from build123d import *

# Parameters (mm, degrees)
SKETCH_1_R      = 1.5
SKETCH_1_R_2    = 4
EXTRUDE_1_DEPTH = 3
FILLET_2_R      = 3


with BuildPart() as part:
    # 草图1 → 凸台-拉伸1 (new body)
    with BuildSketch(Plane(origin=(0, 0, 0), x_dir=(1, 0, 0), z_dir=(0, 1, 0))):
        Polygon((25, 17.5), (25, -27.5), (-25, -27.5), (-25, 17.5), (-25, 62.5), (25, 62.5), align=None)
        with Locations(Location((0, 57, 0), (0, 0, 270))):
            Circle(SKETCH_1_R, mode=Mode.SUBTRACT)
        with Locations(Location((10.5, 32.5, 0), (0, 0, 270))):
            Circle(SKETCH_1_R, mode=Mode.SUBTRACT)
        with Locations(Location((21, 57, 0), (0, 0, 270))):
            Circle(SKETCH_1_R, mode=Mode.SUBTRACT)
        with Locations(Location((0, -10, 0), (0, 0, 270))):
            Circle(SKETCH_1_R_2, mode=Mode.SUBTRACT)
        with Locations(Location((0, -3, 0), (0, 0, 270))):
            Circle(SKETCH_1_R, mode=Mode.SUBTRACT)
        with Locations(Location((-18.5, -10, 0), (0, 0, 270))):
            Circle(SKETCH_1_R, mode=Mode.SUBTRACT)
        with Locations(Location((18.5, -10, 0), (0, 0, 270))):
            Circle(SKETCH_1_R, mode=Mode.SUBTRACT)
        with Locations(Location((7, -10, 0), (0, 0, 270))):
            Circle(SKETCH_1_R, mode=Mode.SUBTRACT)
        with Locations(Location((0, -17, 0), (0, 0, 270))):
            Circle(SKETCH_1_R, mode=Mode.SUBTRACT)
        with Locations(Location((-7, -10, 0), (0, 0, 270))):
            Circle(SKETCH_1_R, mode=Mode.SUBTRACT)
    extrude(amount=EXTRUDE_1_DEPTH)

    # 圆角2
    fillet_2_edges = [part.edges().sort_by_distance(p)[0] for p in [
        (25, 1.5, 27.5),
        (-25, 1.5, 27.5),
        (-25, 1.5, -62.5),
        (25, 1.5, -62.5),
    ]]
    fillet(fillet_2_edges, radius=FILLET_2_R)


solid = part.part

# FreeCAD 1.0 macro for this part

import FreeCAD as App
import Part
import Sketcher

V = App.Vector


def edges_at(feature, points):
    """Names of the edges that pass closest to the given points."""
    edges = feature.Shape.Edges
    near = lambda p: min(range(len(edges)), key=lambda i: edges[i].distToShape(Part.Vertex(*p))[0])
    return sorted({f"Edge{near(p) + 1}" for p in points})

doc = App.newDocument("Part")
body = doc.addObject("PartDesign::Body", "Body")

# Sketch on XZ plane
sketch1 = body.newObject("Sketcher::SketchObject", "Sketch")
sketch1.AttachmentSupport = (doc.getObject("XZ_Plane"), [""])
sketch1.MapMode = "FlatFace"
sketch1.addGeometry([
    Part.LineSegment(V(25, 27.5, 0), V(25, -62.5, 0)),  # 0
    Part.LineSegment(V(25, -62.5, 0), V(-25, -62.5, 0)),  # 1
    Part.LineSegment(V(-25, -62.5, 0), V(-25, 27.5, 0)),  # 2
    Part.LineSegment(V(-25, 27.5, 0), V(25, 27.5, 0)),  # 3
    Part.Circle(V(18.5, 10, 0), V(0, 0, 1), 1.5),  # 4
    Part.Circle(V(7, 10, 0), V(0, 0, 1), 1.5),  # 5
    Part.Circle(V(0, 17, 0), V(0, 0, 1), 1.5),  # 6
    Part.Circle(V(0, 10, 0), V(0, 0, 1), 4),  # 7
    Part.Circle(V(-7, 10, 0), V(0, 0, 1), 1.5),  # 8
    Part.Circle(V(0, 3, 0), V(0, 0, 1), 1.5),  # 9
    Part.Circle(V(-18.5, 10, 0), V(0, 0, 1), 1.5),  # 10
    Part.Circle(V(10.5, -32.5, 0), V(0, 0, 1), 1.5),  # 11
    Part.Circle(V(21, -57, 0), V(0, 0, 1), 1.5),  # 12
    Part.Circle(V(0, -57, 0), V(0, 0, 1), 1.5),  # 13
], False)
sketch1.addConstraint([
    Sketcher.Constraint("Coincident", 0, 2, 1, 1),
    Sketcher.Constraint("Coincident", 1, 2, 2, 1),
    Sketcher.Constraint("Coincident", 2, 2, 3, 1),
    Sketcher.Constraint("Coincident", 3, 2, 0, 1),
    Sketcher.Constraint("Vertical", 0),
    Sketcher.Constraint("Horizontal", 1),
    Sketcher.Constraint("Vertical", 2),
    Sketcher.Constraint("Horizontal", 3),
    Sketcher.Constraint("Equal", 4, 5),
    Sketcher.Constraint("Equal", 5, 6),
    Sketcher.Constraint("Equal", 6, 8),
    Sketcher.Constraint("Equal", 8, 9),
    Sketcher.Constraint("Equal", 9, 10),
    Sketcher.Constraint("Equal", 10, 11),
    Sketcher.Constraint("Equal", 11, 12),
    Sketcher.Constraint("Equal", 12, 13),
    Sketcher.Constraint("Symmetric", 5, 3, 8, 3, -2),
    Sketcher.Constraint("Symmetric", 4, 3, 10, 3, -2),
    Sketcher.Constraint("PointOnObject", 6, 3, -2),
    Sketcher.Constraint("PointOnObject", 7, 3, -2),
    Sketcher.Constraint("PointOnObject", 9, 3, -2),
    Sketcher.Constraint("PointOnObject", 13, 3, -2),
    Sketcher.Constraint("Horizontal", 4, 3, 5, 3),
    Sketcher.Constraint("Horizontal", 5, 3, 7, 3),
    Sketcher.Constraint("Horizontal", 12, 3, 13, 3),
    Sketcher.Constraint("Diameter", 4, 3.0),
    Sketcher.Constraint("Diameter", 7, 8.0),
    Sketcher.Constraint("DistanceX", 1, 2, 1, 1, 50.0),
    Sketcher.Constraint("DistanceY", 0, 2, 0, 1, 90.0),
    Sketcher.Constraint("DistanceY", -1, 1, 4, 3, 10.0),
    Sketcher.Constraint("DistanceX", -1, 1, 5, 3, 7.0),
    Sketcher.Constraint("DistanceY", -1, 1, 6, 3, 17.0),
    Sketcher.Constraint("DistanceY", -1, 1, 9, 3, 3.0),
    Sketcher.Constraint("DistanceX", -1, 1, 12, 3, 21.0),
    Sketcher.Constraint("DistanceY", 12, 3, -1, 1, 57.0),
    Sketcher.Constraint("DistanceX", -1, 1, 0, 2, 25.0),
    Sketcher.Constraint("DistanceX", 11, 3, 4, 3, 8.0),
    Sketcher.Constraint("DistanceY", 0, 2, 11, 3, 30.0),
    Sketcher.Constraint("DistanceX", -1, 1, 4, 3, 18.5),
    Sketcher.Constraint("DistanceY", 11, 3, -1, 1, 32.5),
])
pad1 = body.newObject("PartDesign::Pad", "Pad")
pad1.Profile = sketch1
pad1.Length = 3
pad1.Reversed = True
doc.recompute()

fillet = body.newObject("PartDesign::Fillet", "Fillet")
fillet.Base = (pad1, edges_at(pad1, [
    (25, 1.5, 27.5),
    (-25, 1.5, 27.5),
    (-25, 1.5, -62.5),
    (25, 1.5, -62.5),
]))
fillet.Radius = 3

doc.recompute()
